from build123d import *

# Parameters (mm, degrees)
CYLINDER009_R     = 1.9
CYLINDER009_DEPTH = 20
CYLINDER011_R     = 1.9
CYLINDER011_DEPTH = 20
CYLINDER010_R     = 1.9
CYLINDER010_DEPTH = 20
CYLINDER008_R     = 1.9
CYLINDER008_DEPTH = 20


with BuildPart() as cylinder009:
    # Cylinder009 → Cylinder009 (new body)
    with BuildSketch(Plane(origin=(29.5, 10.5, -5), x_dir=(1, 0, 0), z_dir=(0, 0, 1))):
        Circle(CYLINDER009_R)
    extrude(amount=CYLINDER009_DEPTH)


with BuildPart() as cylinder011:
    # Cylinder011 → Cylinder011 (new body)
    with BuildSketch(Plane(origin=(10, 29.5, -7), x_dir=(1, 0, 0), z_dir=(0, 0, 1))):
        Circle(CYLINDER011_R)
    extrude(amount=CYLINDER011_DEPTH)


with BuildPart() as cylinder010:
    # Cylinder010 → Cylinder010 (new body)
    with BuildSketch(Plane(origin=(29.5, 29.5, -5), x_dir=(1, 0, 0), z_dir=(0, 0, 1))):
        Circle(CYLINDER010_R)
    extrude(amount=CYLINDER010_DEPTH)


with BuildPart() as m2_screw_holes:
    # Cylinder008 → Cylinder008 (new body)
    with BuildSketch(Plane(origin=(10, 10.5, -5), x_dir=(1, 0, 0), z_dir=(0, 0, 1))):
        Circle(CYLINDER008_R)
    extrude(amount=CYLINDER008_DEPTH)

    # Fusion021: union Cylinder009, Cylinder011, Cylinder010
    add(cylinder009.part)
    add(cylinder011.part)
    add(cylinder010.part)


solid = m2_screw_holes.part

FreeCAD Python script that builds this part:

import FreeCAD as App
import Part
import Sketcher

V = App.Vector

doc = App.newDocument("Part")
body = doc.addObject("PartDesign::Body", "Body")

# Sketch on XY plane
sketch1 = doc.addObject("Sketcher::SketchObject", "Sketch")
body.addObject(sketch1)
sketch1.AttachmentSupport = (doc.XY_Plane, [""])
sketch1.MapMode = "FlatFace"
sketch1.AttachmentOffset = App.Placement(V(0, 0, -5), App.Rotation())
sketch1.addGeometry(Part.Circle(V(29.5, 10.5, 0), V(0, 0, 1), 1.9), False)
sketch1.addConstraint(Sketcher.Constraint("Diameter", 0, 3.8))
sketch1.addConstraint(Sketcher.Constraint("DistanceX", -1, 1, 0, 3, 29.5))
sketch1.addConstraint(Sketcher.Constraint("DistanceY", -1, 1, 0, 3, 10.5))
pad1 = doc.addObject("PartDesign::Pad", "Pad")
body.addObject(pad1)
pad1.Profile = sketch1
pad1.Length = 20
body2 = doc.addObject("PartDesign::Body", "Body001")

# Sketch on XY plane
sketch2 = doc.addObject("Sketcher::SketchObject", "Sketch001")
body2.addObject(sketch2)
sketch2.AttachmentSupport = (doc.getObject("XY_Plane001"), [""])
sketch2.MapMode = "FlatFace"
sketch2.AttachmentOffset = App.Placement(V(0, 0, -7), App.Rotation())
sketch2.addGeometry(Part.Circle(V(10, 29.5, 0), V(0, 0, 1), 1.9), False)
sketch2.addConstraint(Sketcher.Constraint("Diameter", 0, 3.8))
sketch2.addConstraint(Sketcher.Constraint("DistanceX", -1, 1, 0, 3, 10.0))
sketch2.addConstraint(Sketcher.Constraint("DistanceY", -1, 1, 0, 3, 29.5))
pad2 = doc.addObject("PartDesign::Pad", "Pad001")
body2.addObject(pad2)
pad2.Profile = sketch2
pad2.Length = 20
body3 = doc.addObject("PartDesign::Body", "Body002")

# Sketch on XY plane
sketch3 = doc.addObject("Sketcher::SketchObject", "Sketch002")
body3.addObject(sketch3)
sketch3.AttachmentSupport = (doc.getObject("XY_Plane002"), [""])
sketch3.MapMode = "FlatFace"
sketch3.AttachmentOffset = App.Placement(V(0, 0, -5), App.Rotation())
sketch3.addGeometry(Part.Circle(V(29.5, 29.5, 0), V(0, 0, 1), 1.9), False)
sketch3.addConstraint(Sketcher.Constraint("Diameter", 0, 3.8))
sketch3.addConstraint(Sketcher.Constraint("DistanceX", -1, 1, 0, 3, 29.5))
sketch3.addConstraint(Sketcher.Constraint("DistanceY", -1, 1, 0, 3, 29.5))
pad3 = doc.addObject("PartDesign::Pad", "Pad002")
body3.addObject(pad3)
pad3.Profile = sketch3
pad3.Length = 20
body4 = doc.addObject("PartDesign::Body", "Body003")
body4.AllowCompound = True

# Sketch on XY plane
sketch4 = doc.addObject("Sketcher::SketchObject", "Sketch003")
body4.addObject(sketch4)
sketch4.AttachmentSupport = (doc.getObject("XY_Plane003"), [""])
sketch4.MapMode = "FlatFace"
sketch4.AttachmentOffset = App.Placement(V(0, 0, -5), App.Rotation())
sketch4.addGeometry(Part.Circle(V(10, 10.5, 0), V(0, 0, 1), 1.9), False)
sketch4.addConstraint(Sketcher.Constraint("Diameter", 0, 3.8))
sketch4.addConstraint(Sketcher.Constraint("DistanceX", -1, 1, 0, 3, 10.0))
sketch4.addConstraint(Sketcher.Constraint("DistanceY", -1, 1, 0, 3, 10.5))
pad4 = doc.addObject("PartDesign::Pad", "Pad003")
body4.addObject(pad4)
pad4.Profile = sketch4
pad4.Length = 20
doc.recompute()

boolean = doc.addObject("PartDesign::Boolean", "Boolean")
body4.addObject(boolean)
boolean.Type = "Fuse"
boolean.addObjects([body])
doc.recompute()

boolean2 = doc.addObject("PartDesign::Boolean", "Boolean001")
body4.addObject(boolean2)
boolean2.Type = "Fuse"
boolean2.addObjects([body2])
doc.recompute()

boolean3 = doc.addObject("PartDesign::Boolean", "Boolean002")
body4.addObject(boolean3)
boolean3.Type = "Fuse"
boolean3.addObjects([body3])

doc.recompute()
